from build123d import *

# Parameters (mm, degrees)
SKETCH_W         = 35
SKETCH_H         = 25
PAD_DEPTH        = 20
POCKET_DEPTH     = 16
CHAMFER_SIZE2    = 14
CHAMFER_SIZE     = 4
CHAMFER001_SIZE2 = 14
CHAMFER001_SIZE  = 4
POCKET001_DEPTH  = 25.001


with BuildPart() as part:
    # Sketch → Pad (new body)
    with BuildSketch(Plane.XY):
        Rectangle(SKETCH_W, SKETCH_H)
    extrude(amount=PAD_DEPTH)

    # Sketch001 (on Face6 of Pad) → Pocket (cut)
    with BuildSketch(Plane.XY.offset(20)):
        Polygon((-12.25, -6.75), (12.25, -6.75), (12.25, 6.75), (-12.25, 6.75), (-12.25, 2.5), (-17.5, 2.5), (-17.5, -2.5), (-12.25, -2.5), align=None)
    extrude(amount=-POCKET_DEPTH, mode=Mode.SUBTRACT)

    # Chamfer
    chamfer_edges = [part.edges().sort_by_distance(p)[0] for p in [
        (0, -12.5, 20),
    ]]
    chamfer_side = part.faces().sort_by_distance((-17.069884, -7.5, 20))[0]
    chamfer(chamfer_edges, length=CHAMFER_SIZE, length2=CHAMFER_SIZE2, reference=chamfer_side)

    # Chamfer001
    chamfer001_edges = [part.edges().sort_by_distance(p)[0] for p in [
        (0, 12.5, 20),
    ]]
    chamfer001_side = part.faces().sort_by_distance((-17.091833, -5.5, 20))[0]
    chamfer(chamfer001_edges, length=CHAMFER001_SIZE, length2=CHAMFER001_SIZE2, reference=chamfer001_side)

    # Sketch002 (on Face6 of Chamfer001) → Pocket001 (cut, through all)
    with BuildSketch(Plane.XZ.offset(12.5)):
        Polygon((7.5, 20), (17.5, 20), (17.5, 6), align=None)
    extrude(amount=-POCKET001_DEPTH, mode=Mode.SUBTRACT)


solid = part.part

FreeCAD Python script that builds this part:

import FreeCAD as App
import Part
import Sketcher

V = App.Vector
Q = App.Units.Quantity


def edges_at(feature, points):
    """Names of the edges that pass closest to the given points."""
    edges = feature.Shape.Edges
    near = lambda p: min(range(len(edges)), key=lambda i: edges[i].distToShape(Part.Vertex(*p))[0])
    return sorted({f"Edge{near(p) + 1}" for p in points})

doc = App.newDocument("Part")
body = doc.addObject("PartDesign::Body", "Body")

# Sketch on XY plane
sketch1 = doc.addObject("Sketcher::SketchObject", "Sketch")
body.addObject(sketch1)
sketch1.AttachmentSupport = (doc.XY_Plane, [""])
sketch1.MapMode = "FlatFace"
sketch1.addGeometry([
    Part.LineSegment(V(-17.5, 12.5, 0), V(-17.5, -12.5, 0)),
    Part.LineSegment(V(-17.5, -12.5, 0), V(17.5, -12.5, 0)),
    Part.LineSegment(V(17.5, -12.5, 0), V(17.5, 12.5, 0)),
    Part.LineSegment(V(17.5, 12.5, 0), V(-17.5, 12.5, 0)),
], False)
sketch1.addConstraint([
    Sketcher.Constraint("Coincident", 0, 2, 1, 1),
    Sketcher.Constraint("Coincident", 1, 2, 2, 1),
    Sketcher.Constraint("Coincident", 2, 2, 3, 1),
    Sketcher.Constraint("Coincident", 3, 2, 0, 1),
    Sketcher.Constraint("Vertical", 0),
    Sketcher.Constraint("Horizontal", 1),
    Sketcher.Constraint("Vertical", 2),
    Sketcher.Constraint("Horizontal", 3),
    Sketcher.Constraint("Symmetric", 0, 2, 2, 2, -1, 1),
    Sketcher.Constraint("DistanceX", 1, 1, 1, 2, Q("35 mm")),
    Sketcher.Constraint("DistanceY", 0, 2, 0, 1, Q("25 mm")),
])
pad1 = doc.addObject("PartDesign::Pad", "Pad")
body.addObject(pad1)
pad1.Profile = sketch1
pad1.Length = 20

# Sketch on XY plane
sketch2 = doc.addObject("Sketcher::SketchObject", "Sketch001")
body.addObject(sketch2)
sketch2.AttachmentSupport = (doc.XY_Plane, [""])
sketch2.MapMode = "FlatFace"
sketch2.AttachmentOffset = App.Placement(V(0, 0, 20), App.Rotation())
sketch2.addGeometry([
    Part.LineSegment(V(-12.25, -6.75, 0), V(12.25, -6.75, 0)),  # 0
    Part.LineSegment(V(12.25, -6.75, 0), V(12.25, 6.75, 0)),  # 1
    Part.LineSegment(V(12.25, 6.75, 0), V(-12.25, 6.75, 0)),  # 2
    Part.LineSegment(V(-12.25, 6.75, 0), V(-12.25, 2.5, 0)),  # 3
    Part.LineSegment(V(-12.25, 2.5, 0), V(-17.5, 2.5, 0)),  # 4
    Part.LineSegment(V(-17.5, 2.5, 0), V(-17.5, -2.5, 0)),  # 5
    Part.LineSegment(V(-17.5, -2.5, 0), V(-12.25, -2.5, 0)),  # 6
    Part.LineSegment(V(-12.25, -2.5, 0), V(-12.25, -6.75, 0)),  # 7
], False)
sketch2.addConstraint([
    Sketcher.Constraint("Coincident", 0, 2, 1, 1),
    Sketcher.Constraint("Coincident", 1, 2, 2, 1),
    Sketcher.Constraint("Coincident", 2, 2, 3, 1),
    Sketcher.Constraint("Coincident", 3, 2, 4, 1),
    Sketcher.Constraint("Coincident", 4, 2, 5, 1),
    Sketcher.Constraint("Coincident", 5, 2, 6, 1),
    Sketcher.Constraint("Coincident", 6, 2, 7, 1),
    Sketcher.Constraint("Coincident", 7, 2, 0, 1),
    Sketcher.Constraint("Horizontal", 0),
    Sketcher.Constraint("Vertical", 1),
    Sketcher.Constraint("Horizontal", 2),
    Sketcher.Constraint("Vertical", 3),
    Sketcher.Constraint("Horizontal", 4),
    Sketcher.Constraint("Vertical", 5),
    Sketcher.Constraint("Horizontal", 6),
    Sketcher.Constraint("Vertical", 7),
    Sketcher.Constraint("Symmetric", 0, 2, 2, 2, -1, 1),
    Sketcher.Constraint("Symmetric", 3, 2, 6, 2, -1),
    Sketcher.Constraint("DistanceY", 5, 2, 5, 1, Q("5 mm")),
    Sketcher.Constraint("DistanceX", 0, 1, 0, 2, Q("24.5 mm")),
    Sketcher.Constraint("DistanceY", 1, 1, 1, 2, Q("13.5 mm")),
    Sketcher.Constraint("DistanceX", 4, 2, 4, 1, Q("5.25 mm")),
])
pocket1 = doc.addObject("PartDesign::Pocket", "Pocket")
body.addObject(pocket1)
pocket1.Profile = sketch2
pocket1.Length = 16
doc.recompute()

chamfer = doc.addObject("PartDesign::Chamfer", "Chamfer")
body.addObject(chamfer)
chamfer.Base = (pocket1, edges_at(pocket1, [(0, -12.5, 20)]))
chamfer.ChamferType = "Two distances"
chamfer.Size = 4
chamfer.Size2 = 14
chamfer.FlipDirection = True
doc.recompute()

chamfer2 = doc.addObject("PartDesign::Chamfer", "Chamfer001")
body.addObject(chamfer2)
chamfer2.Base = (chamfer, edges_at(chamfer, [(0, 12.5, 20)]))
chamfer2.ChamferType = "Two distances"
chamfer2.Size = 4
chamfer2.Size2 = 14

# Sketch on XZ plane
sketch3 = doc.addObject("Sketcher::SketchObject", "Sketch002")
body.addObject(sketch3)
sketch3.AttachmentSupport = (doc.XZ_Plane, [""])
sketch3.MapMode = "FlatFace"
sketch3.AttachmentOffset = App.Placement(V(0, 0, 12.5), App.Rotation())
sketch3.addGeometry([
    Part.LineSegment(V(17.5, 20, 0), V(7.5, 20, 0)),
    Part.LineSegment(V(7.5, 20, 0), V(17.5, 6, 0)),
    Part.LineSegment(V(17.5, 6, 0), V(17.5, 20, 0)),
], False)
sketch3.addConstraint([
    Sketcher.Constraint("Coincident", 0, 2, 1, 1),
    Sketcher.Constraint("Coincident", 1, 2, 2, 1),
    Sketcher.Constraint("Coincident", 2, 2, 0, 1),
    Sketcher.Constraint("Horizontal", 0),
    Sketcher.Constraint("Vertical", 2),
    Sketcher.Constraint("DistanceX", 0, 2, 0, 1, Q("10 mm")),
    Sketcher.Constraint("DistanceY", 2, 1, 2, 2, Q("14 mm")),
    Sketcher.Constraint("DistanceY", -1, 1, 0, 2, Q("20 mm")),
    Sketcher.Constraint("DistanceX", -1, 1, 0, 2, Q("7.5 mm")),
])
pocket2 = doc.addObject("PartDesign::Pocket", "Pocket001")
body.addObject(pocket2)
pocket2.Profile = sketch3
pocket2.Type = "ThroughAll"

doc.recompute()
